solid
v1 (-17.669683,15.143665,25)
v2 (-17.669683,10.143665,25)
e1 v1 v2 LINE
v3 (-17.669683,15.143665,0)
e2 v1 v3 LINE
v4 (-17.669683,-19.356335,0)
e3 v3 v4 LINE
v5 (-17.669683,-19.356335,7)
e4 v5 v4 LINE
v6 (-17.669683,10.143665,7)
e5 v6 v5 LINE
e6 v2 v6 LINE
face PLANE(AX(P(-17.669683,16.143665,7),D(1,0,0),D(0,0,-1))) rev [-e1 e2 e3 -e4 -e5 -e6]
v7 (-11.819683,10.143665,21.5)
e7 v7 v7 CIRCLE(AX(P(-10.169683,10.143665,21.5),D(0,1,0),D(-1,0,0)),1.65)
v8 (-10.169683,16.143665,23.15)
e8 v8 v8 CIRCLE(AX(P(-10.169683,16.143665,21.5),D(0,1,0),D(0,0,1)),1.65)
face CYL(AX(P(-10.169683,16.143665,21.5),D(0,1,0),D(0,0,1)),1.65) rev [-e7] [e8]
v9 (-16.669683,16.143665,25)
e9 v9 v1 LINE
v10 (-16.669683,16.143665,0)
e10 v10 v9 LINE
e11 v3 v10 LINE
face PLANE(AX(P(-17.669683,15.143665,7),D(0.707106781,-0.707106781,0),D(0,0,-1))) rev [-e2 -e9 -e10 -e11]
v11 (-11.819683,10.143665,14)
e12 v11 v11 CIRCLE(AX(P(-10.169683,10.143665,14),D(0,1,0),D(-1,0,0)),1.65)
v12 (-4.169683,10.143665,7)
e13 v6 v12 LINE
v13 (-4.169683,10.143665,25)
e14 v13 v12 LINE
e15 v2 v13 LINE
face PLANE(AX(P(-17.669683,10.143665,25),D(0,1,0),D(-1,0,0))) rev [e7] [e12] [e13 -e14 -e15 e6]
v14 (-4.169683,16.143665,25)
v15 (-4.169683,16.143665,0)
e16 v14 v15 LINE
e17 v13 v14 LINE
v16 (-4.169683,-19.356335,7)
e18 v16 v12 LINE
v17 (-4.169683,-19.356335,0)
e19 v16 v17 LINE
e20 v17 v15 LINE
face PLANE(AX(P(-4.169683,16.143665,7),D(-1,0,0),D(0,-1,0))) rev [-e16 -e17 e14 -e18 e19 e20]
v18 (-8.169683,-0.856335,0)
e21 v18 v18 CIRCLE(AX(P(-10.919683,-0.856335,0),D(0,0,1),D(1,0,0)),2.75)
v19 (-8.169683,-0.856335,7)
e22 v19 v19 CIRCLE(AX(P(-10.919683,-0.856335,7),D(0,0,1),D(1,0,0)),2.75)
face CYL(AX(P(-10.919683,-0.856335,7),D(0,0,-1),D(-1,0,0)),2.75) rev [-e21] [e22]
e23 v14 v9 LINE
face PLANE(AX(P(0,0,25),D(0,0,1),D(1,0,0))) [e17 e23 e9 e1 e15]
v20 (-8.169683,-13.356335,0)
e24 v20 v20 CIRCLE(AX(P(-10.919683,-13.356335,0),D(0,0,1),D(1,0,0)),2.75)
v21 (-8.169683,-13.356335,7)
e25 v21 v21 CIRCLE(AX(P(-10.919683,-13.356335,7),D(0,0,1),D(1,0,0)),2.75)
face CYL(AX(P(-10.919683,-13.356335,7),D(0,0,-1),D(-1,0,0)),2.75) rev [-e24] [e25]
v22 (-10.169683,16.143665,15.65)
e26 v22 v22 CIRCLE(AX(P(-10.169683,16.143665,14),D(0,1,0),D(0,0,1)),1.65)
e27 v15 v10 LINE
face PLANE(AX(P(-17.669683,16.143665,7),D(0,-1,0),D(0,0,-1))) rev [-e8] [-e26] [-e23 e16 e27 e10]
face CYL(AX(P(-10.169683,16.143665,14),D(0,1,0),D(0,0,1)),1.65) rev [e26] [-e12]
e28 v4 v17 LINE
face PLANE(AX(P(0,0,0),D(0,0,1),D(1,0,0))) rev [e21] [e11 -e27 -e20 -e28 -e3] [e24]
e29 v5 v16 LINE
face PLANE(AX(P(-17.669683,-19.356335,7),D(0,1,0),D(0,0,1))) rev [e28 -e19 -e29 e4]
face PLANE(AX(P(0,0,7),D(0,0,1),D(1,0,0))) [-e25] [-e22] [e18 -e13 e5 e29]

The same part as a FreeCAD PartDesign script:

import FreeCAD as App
import Part
import Sketcher
from FreeCAD import Vector
Q = App.Units.Quantity


def edges_at(feature, points):
    """Names of the edges that pass closest to the given points."""
    edges = feature.Shape.Edges
    near = lambda p: min(range(len(edges)), key=lambda i: edges[i].distToShape(Part.Vertex(*p))[0])
    return sorted({f"Edge{near(p) + 1}" for p in points})

doc = App.newDocument("Part")
body = doc.addObject("PartDesign::Body", "Body")

# Sketch on XY plane
sketch1 = body.newObject("Sketcher::SketchObject", "Sketch")
sketch1.AttachmentSupport = (doc.getObject("XY_Plane"), [""])
sketch1.MapMode = "FlatFace"
sketch1.addGeometry(Part.LineSegment(Vector(-17.7, 16.1, 0), Vector(-17.7, -19.4, 0)), False)
sketch1.addGeometry(Part.LineSegment(Vector(-17.7, -19.4, 0), Vector(-4.2, -19.4, 0)), False)
sketch1.addGeometry(Part.LineSegment(Vector(-4.2, -19.4, 0), Vector(-4.2, 16.1, 0)), False)
sketch1.addGeometry(Part.LineSegment(Vector(-4.2, 16.1, 0), Vector(-17.7, 16.1, 0)), False)
sketch1.addGeometry(Part.Circle(Vector(-10.9, -13.4, 0), Vector(0, 0, 1), 2.8), False)
sketch1.addGeometry(Part.Circle(Vector(-10.9, -0.9, 0), Vector(0, 0, 1), 2.8), False)
sketch1.addConstraint(Sketcher.Constraint("Coincident", 0, 2, 1, 1))
sketch1.addConstraint(Sketcher.Constraint("Coincident", 1, 2, 2, 1))
sketch1.addConstraint(Sketcher.Constraint("Coincident", 2, 2, 3, 1))
sketch1.addConstraint(Sketcher.Constraint("Coincident", 3, 2, 0, 1))
sketch1.addConstraint(Sketcher.Constraint("Vertical", 0))
sketch1.addConstraint(Sketcher.Constraint("Horizontal", 1))
sketch1.addConstraint(Sketcher.Constraint("Vertical", 2))
sketch1.addConstraint(Sketcher.Constraint("Horizontal", 3))
sketch1.addConstraint(Sketcher.Constraint("Equal", 4, 5))
sketch1.addConstraint(Sketcher.Constraint("Vertical", 4, 3, 5, 3))
sketch1.addConstraint(Sketcher.Constraint("Diameter", 4, Q("5.5 mm")))
sketch1.addConstraint(Sketcher.Constraint("DistanceX", 1, 1, 1, 2, Q("13.5 mm")))
sketch1.addConstraint(Sketcher.Constraint("DistanceY", 0, 2, 0, 1, Q("35.5 mm")))
sketch1.addConstraint(Sketcher.Constraint("DistanceY", 0, 2, 4, 3, Q("6 mm")))
sketch1.addConstraint(Sketcher.Constraint("DistanceY", 5, 3, 2, 2, Q("17 mm")))
sketch1.addConstraint(Sketcher.Constraint("DistanceX", 0, 2, 4, 3, Q("6.75 mm")))
sketch1.addConstraint(Sketcher.Constraint("DistanceX", 4, 3, -1, 1, Q("10.919683 mm")))
sketch1.addConstraint(Sketcher.Constraint("DistanceY", 4, 3, -1, 1, Q("13.356335 mm")))
pad1 = body.newObject("PartDesign::Pad", "Pad")
pad1.Profile = sketch1
pad1.Length = 7

# Sketch on XY plane
sketch2 = body.newObject("Sketcher::SketchObject", "Sketch001")
sketch2.AttachmentSupport = (doc.getObject("XY_Plane"), [""])
sketch2.MapMode = "FlatFace"
sketch2.AttachmentOffset = App.Placement(Vector(0, 0, 7), App.Rotation())
sketch2.addGeometry(Part.LineSegment(Vector(-18, 16, 0), Vector(-18, 10, 0)), False)
sketch2.addGeometry(Part.LineSegment(Vector(-18, 10, 0), Vector(-4, 10, 0)), False)
sketch2.addGeometry(Part.LineSegment(Vector(-4, 10, 0), Vector(-4, 16, 0)), False)
sketch2.addGeometry(Part.LineSegment(Vector(-4, 16, 0), Vector(-18, 16, 0)), False)
sketch2.addConstraint(Sketcher.Constraint("Coincident", 0, 2, 1, 1))
sketch2.addConstraint(Sketcher.Constraint("Coincident", 1, 2, 2, 1))
sketch2.addConstraint(Sketcher.Constraint("Coincident", 2, 2, 3, 1))
sketch2.addConstraint(Sketcher.Constraint("Coincident", 3, 2, 0, 1))
sketch2.addConstraint(Sketcher.Constraint("Vertical", 0))
sketch2.addConstraint(Sketcher.Constraint("Horizontal", 1))
sketch2.addConstraint(Sketcher.Constraint("Vertical", 2))
sketch2.addConstraint(Sketcher.Constraint("Horizontal", 3))
sketch2.addConstraint(Sketcher.Constraint("DistanceY", 0, 2, 0, 1, Q("6 mm")))
sketch2.addConstraint(Sketcher.Constraint("DistanceX", 1, 1, 1, 2, Q("13.5 mm")))
sketch2.addConstraint(Sketcher.Constraint("DistanceX", 0, 2, -1, 1, Q("17.669683 mm")))
sketch2.addConstraint(Sketcher.Constraint("DistanceY", -1, 1, 0, 2, Q("10.143665 mm")))
pad2 = body.newObject("PartDesign::Pad", "Pad001")
pad2.Profile = sketch2
pad2.Length = 18
doc.recompute()

chamfer = body.newObject("PartDesign::Chamfer", "Chamfer")
chamfer.Base = (pad2, edges_at(pad2, [(-17.67, 16.144, 12.5)]))
chamfer.Size = 1

# Sketch on XZ plane
sketch3 = body.newObject("Sketcher::SketchObject", "Sketch002")
sketch3.AttachmentSupport = (doc.getObject("XZ_Plane"), [""])
sketch3.MapMode = "FlatFace"
sketch3.AttachmentOffset = App.Placement(Vector(0, 0, -16.143665), App.Rotation())
sketch3.addGeometry(Part.Circle(Vector(-10.2, 21.5, 0), Vector(0, 0, 1), 1.6), False)
sketch3.addGeometry(Part.Circle(Vector(-10.2, 14, 0), Vector(0, 0, 1), 1.6), False)
sketch3.addConstraint(Sketcher.Constraint("Equal", 0, 1))
sketch3.addConstraint(Sketcher.Constraint("Vertical", 0, 3, 1, 3))
sketch3.addConstraint(Sketcher.Constraint("Diameter", 0, Q("3.3 mm")))
sketch3.addConstraint(Sketcher.Constraint("DistanceY", -1, 1, 1, 3, Q("14 mm")))
sketch3.addConstraint(Sketcher.Constraint("DistanceY", -1, 1, 0, 3, Q("21.5 mm")))
sketch3.addConstraint(Sketcher.Constraint("DistanceX", 0, 3, -1, 1, Q("10.169683 mm")))
doc.recompute()
hole = body.newObject("PartDesign::Hole", "Hole")
hole.Profile = sketch3
hole.ThreadType = "None"
hole.Diameter = 3.3
hole.DepthType = "ThroughAll"
hole.Reversed = True

doc.recompute()
